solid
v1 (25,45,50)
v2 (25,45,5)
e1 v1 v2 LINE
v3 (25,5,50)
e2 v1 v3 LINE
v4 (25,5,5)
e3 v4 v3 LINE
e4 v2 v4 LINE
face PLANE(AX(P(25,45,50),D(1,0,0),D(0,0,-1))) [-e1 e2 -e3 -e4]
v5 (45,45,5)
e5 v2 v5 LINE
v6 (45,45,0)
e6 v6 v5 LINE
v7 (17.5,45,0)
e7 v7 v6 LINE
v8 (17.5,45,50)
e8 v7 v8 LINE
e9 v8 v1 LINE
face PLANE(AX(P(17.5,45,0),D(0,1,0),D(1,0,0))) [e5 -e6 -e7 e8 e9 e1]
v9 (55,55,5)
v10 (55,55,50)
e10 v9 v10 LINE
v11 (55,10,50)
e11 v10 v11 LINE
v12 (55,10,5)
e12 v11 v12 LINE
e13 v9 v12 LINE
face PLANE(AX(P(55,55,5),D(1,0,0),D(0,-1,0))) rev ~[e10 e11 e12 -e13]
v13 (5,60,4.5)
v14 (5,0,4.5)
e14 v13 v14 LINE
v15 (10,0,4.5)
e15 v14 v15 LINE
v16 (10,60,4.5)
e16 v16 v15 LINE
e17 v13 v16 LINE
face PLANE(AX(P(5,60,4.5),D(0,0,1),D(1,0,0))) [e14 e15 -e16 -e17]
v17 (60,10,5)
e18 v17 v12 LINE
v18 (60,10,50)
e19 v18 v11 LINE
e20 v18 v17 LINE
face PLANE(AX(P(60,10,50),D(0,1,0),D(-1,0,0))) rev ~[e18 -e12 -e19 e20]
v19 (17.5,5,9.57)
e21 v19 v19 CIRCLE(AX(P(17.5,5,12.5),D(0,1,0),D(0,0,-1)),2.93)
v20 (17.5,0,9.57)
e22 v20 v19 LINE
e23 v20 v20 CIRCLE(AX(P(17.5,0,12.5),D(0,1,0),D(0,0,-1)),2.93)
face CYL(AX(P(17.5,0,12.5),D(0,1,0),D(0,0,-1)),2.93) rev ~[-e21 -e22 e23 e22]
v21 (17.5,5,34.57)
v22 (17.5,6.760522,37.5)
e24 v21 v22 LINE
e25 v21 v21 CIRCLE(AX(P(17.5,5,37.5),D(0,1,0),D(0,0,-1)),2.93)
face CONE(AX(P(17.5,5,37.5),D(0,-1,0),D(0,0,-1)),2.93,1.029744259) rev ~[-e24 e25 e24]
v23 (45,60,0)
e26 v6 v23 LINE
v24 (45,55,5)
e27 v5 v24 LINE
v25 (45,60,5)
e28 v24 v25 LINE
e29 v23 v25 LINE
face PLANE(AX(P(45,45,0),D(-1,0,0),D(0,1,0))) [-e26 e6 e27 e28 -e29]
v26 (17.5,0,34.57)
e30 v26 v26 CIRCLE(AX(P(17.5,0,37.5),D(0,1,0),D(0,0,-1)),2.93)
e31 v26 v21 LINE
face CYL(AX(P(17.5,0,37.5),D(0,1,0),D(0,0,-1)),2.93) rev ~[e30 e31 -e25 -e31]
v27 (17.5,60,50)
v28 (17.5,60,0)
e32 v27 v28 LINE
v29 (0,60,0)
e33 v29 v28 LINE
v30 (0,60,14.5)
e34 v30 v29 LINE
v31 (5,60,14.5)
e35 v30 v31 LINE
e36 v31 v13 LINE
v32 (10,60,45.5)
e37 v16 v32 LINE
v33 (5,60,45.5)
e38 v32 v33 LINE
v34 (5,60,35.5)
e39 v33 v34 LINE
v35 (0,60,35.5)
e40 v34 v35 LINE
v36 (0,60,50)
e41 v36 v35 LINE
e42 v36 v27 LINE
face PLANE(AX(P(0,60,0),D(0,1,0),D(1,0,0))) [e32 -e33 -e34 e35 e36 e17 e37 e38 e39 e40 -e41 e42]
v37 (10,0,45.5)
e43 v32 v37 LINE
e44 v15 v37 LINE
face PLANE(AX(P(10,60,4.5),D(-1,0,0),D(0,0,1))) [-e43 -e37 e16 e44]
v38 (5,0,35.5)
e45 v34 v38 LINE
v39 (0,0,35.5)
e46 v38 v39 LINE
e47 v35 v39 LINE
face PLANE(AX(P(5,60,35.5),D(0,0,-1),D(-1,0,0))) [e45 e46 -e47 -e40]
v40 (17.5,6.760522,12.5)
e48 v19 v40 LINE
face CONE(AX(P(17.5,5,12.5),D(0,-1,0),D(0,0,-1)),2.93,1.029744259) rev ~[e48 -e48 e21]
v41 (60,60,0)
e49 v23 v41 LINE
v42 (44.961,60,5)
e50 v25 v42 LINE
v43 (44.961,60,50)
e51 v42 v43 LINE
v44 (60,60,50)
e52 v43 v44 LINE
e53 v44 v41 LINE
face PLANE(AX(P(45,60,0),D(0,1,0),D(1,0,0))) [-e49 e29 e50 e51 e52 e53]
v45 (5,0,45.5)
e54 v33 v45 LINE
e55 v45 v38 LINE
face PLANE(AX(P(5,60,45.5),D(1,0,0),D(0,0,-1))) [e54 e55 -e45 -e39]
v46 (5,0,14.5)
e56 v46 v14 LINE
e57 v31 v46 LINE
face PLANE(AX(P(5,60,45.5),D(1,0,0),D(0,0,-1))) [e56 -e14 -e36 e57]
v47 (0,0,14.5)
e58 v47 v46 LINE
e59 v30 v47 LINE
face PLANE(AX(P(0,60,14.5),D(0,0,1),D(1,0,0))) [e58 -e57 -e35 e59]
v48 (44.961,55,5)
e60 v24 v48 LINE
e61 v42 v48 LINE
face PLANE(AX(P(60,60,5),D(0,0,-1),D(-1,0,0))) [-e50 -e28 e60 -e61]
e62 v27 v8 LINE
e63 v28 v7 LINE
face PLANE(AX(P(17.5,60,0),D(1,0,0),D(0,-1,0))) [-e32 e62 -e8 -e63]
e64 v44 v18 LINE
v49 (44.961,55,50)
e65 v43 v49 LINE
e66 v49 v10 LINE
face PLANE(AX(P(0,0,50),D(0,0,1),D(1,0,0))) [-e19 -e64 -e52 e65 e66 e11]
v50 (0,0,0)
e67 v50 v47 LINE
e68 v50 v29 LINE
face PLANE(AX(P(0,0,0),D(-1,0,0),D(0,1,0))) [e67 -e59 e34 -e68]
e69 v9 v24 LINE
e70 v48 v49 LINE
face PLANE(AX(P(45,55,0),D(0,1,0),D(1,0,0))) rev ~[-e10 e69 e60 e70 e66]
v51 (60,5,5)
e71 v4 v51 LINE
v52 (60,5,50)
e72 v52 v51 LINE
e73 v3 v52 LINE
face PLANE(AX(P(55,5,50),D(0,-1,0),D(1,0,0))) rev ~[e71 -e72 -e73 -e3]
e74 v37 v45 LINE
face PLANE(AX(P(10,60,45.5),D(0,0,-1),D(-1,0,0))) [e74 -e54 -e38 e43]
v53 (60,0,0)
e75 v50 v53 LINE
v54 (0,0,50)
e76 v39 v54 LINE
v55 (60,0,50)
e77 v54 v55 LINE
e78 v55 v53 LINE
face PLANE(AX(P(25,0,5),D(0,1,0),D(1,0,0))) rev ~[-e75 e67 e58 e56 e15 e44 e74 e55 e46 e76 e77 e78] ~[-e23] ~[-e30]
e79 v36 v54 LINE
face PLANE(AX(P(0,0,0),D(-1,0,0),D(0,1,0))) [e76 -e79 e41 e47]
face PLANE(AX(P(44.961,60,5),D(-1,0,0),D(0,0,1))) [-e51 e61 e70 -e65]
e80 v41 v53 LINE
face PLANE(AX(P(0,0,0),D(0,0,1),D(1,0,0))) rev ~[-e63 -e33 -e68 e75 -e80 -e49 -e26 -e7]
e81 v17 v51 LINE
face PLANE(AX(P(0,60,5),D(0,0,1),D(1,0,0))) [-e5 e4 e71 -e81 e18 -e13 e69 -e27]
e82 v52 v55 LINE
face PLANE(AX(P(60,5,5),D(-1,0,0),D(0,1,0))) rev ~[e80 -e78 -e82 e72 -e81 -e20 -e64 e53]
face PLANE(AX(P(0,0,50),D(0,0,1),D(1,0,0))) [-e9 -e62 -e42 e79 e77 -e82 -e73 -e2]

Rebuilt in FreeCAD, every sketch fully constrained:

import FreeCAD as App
import Part
import Sketcher


def add_polygon(sketch, points):
    """Adds a closed chain of lines whose ends are joined by coincident constraints."""
    first, n = sketch.GeometryCount, len(points)
    for a, b in zip(points, points[1:] + points[:1]):
        sketch.addGeometry(Part.LineSegment(App.Vector(*a, 0), App.Vector(*b, 0)), False)
    for i in range(n):
        sketch.addConstraint(Sketcher.Constraint("Coincident", first + i, 2, first + (i + 1) % n, 1))

doc = App.newDocument("Part")
body = doc.addObject("PartDesign::Body", "Body")

sketch1 = body.newObject("Sketcher::SketchObject", "Sketch")
sketch1.AttachmentSupport = (doc.getObject("XY_Plane"), [""])
sketch1.MapMode = "FlatFace"
add_polygon(sketch1, [(0, 60), (0, 0), (60, 0), (60, 60), (45, 60), (45, 45), (18, 45), (18, 60)])
sketch1.addConstraint([
    Sketcher.Constraint("Vertical", 0),
    Sketcher.Constraint("Horizontal", 1),
    Sketcher.Constraint("Vertical", 2),
    Sketcher.Constraint("Horizontal", 3),
    Sketcher.Constraint("Vertical", 4),
    Sketcher.Constraint("Horizontal", 5),
    Sketcher.Constraint("Vertical", 6),
    Sketcher.Constraint("Horizontal", 7),
    Sketcher.Constraint("Coincident", 0, 2, -1, 1),
    Sketcher.Constraint("Horizontal", 3, 2, 6, 2),
    Sketcher.Constraint("Equal", 1, 0),
    Sketcher.Constraint("Equal", 3, 4),
    Sketcher.Constraint("DistanceX", 1, 1, 1, 2, 60.0),
    Sketcher.Constraint("DistanceX", 3, 2, 3, 1, 15.0),
    Sketcher.Constraint("DistanceX", 5, 2, 5, 1, 27.5),
])
pad1 = body.newObject("PartDesign::Pad", "Pad")
pad1.Profile = sketch1
pad1.Length = 5

sketch2 = body.newObject("Sketcher::SketchObject", "Sketch001")
sketch2.AttachmentSupport = (doc.getObject("XZ_Plane"), [""])
sketch2.MapMode = "FlatFace"
sketch2.AttachmentOffset = App.Placement(App.Vector(0, 0, -60), App.Rotation())
add_polygon(sketch2, [(18, 50), (18, 5), (0, 5), (0, 50)])
sketch2.addConstraint([
    Sketcher.Constraint("Vertical", 0),
    Sketcher.Constraint("Horizontal", 1),
    Sketcher.Constraint("Vertical", 2),
    Sketcher.Constraint("Horizontal", 3),
    Sketcher.Constraint("PointOnObject", 1, 2, -2),
    Sketcher.Constraint("DistanceY", 0, 2, 0, 1, 45.0),
    Sketcher.Constraint("DistanceX", 1, 2, 1, 1, 17.5),
    Sketcher.Constraint("DistanceY", -1, 1, 0, 2, 5.0),
])
pad2 = body.newObject("PartDesign::Pad", "Pad001")
pad2.Profile = sketch2
pad2.Length = 60

sketch3 = body.newObject("Sketcher::SketchObject", "Sketch002")
sketch3.AttachmentSupport = (doc.getObject("XZ_Plane"), [""])
sketch3.MapMode = "FlatFace"
sketch3.AttachmentOffset = App.Placement(App.Vector(0, 0, -60), App.Rotation())
add_polygon(sketch3, [(45, 5), (45, 50), (60, 50), (60, 5)])
sketch3.addConstraint([
    Sketcher.Constraint("Vertical", 0),
    Sketcher.Constraint("Horizontal", 1),
    Sketcher.Constraint("Vertical", 2),
    Sketcher.Constraint("Horizontal", 3),
    Sketcher.Constraint("DistanceY", 0, 1, 0, 2, 45.0),
    Sketcher.Constraint("DistanceY", -1, 1, 0, 2, 50.0),
    Sketcher.Constraint("DistanceX", -1, 1, 1, 2, 60.0),
    Sketcher.Constraint("DistanceX", 1, 1, 1, 2, 15.039),
])
pad3 = body.newObject("PartDesign::Pad", "Pad002")
pad3.Profile = sketch3
pad3.Length = 5

sketch4 = body.newObject("Sketcher::SketchObject", "Sketch003")
sketch4.AttachmentSupport = (doc.getObject("XZ_Plane"), [""])
sketch4.MapMode = "FlatFace"
sketch4.AttachmentOffset = App.Placement(App.Vector(0, 0, -45), App.Rotation())
add_polygon(sketch4, [(25, 5), (18, 5), (18, 50), (25, 50)])
sketch4.addConstraint([
    Sketcher.Constraint("Horizontal", 0),
    Sketcher.Constraint("Vertical", 1),
    Sketcher.Constraint("Horizontal", 2),
    Sketcher.Constraint("Vertical", 3),
    Sketcher.Constraint("DistanceX", 0, 2, 0, 1, 7.5),
    Sketcher.Constraint("DistanceY", 1, 1, 1, 2, 45.0),
    Sketcher.Constraint("DistanceY", -1, 1, 0, 2, 5.0),
    Sketcher.Constraint("DistanceX", -1, 1, 2, 2, 25.0),
])
pad4 = body.newObject("PartDesign::Pad", "Pad003")
pad4.Profile = sketch4
pad4.Length = 45

sketch5 = body.newObject("Sketcher::SketchObject", "Sketch004")
sketch5.AttachmentSupport = (doc.getObject("XY_Plane"), [""])
sketch5.MapMode = "FlatFace"
sketch5.AttachmentOffset = App.Placement(App.Vector(0, 0, 5), App.Rotation())
add_polygon(sketch5, [(25, 5), (25, 0), (60, 0), (60, 5)])
sketch5.addConstraint([
    Sketcher.Constraint("Vertical", 0),
    Sketcher.Constraint("Horizontal", 1),
    Sketcher.Constraint("Vertical", 2),
    Sketcher.Constraint("Horizontal", 3),
    Sketcher.Constraint("PointOnObject", 0, 2, -1),
    Sketcher.Constraint("DistanceY", 0, 2, 0, 1, 5.0),
    Sketcher.Constraint("DistanceX", 1, 1, 1, 2, 35.0),
    Sketcher.Constraint("DistanceX", -1, 1, 0, 2, 25.0),
])
pad5 = body.newObject("PartDesign::Pad", "Pad004")
pad5.Profile = sketch5
pad5.Length = 45

sketch6 = body.newObject("Sketcher::SketchObject", "Sketch005")
sketch6.AttachmentSupport = (doc.getObject("XY_Plane"), [""])
sketch6.MapMode = "FlatFace"
sketch6.AttachmentOffset = App.Placement(App.Vector(0, 0, 5), App.Rotation())
add_polygon(sketch6, [(60, 5), (60, 55), (55, 55), (55, 5)])
sketch6.addConstraint([
    Sketcher.Constraint("Vertical", 0),
    Sketcher.Constraint("Horizontal", 1),
    Sketcher.Constraint("Vertical", 2),
    Sketcher.Constraint("Horizontal", 3),
    Sketcher.Constraint("DistanceX", 1, 2, 1, 1, 5.0),
    Sketcher.Constraint("DistanceY", 0, 1, 0, 2, 50.0),
    Sketcher.Constraint("DistanceY", -1, 1, 2, 2, 5.0),
    Sketcher.Constraint("DistanceX", -1, 1, 0, 2, 60.0),
])
pad6 = body.newObject("PartDesign::Pad", "Pad005")
pad6.Profile = sketch6
pad6.Length = 45

sketch7 = body.newObject("Sketcher::SketchObject", "Sketch006")
sketch7.AttachmentSupport = (doc.getObject("XZ_Plane"), [""])
sketch7.MapMode = "FlatFace"
sketch7.AttachmentOffset = App.Placement(App.Vector(0, 0, -60), App.Rotation())
add_polygon(sketch7, [(5, 46), (10, 46), (10, 4), (5, 4)])
sketch7.addConstraint([
    Sketcher.Constraint("Horizontal", 0),
    Sketcher.Constraint("Vertical", 1),
    Sketcher.Constraint("Horizontal", 2),
    Sketcher.Constraint("Vertical", 3),
    Sketcher.Constraint("DistanceX", 0, 1, 0, 2, 5.0),
    Sketcher.Constraint("DistanceY", 1, 2, 1, 1, 41.0),
    Sketcher.Constraint("DistanceX", -1, 1, 2, 2, 5.0),
    Sketcher.Constraint("DistanceY", -1, 1, 1, 2, 4.5),
])
pocket1 = body.newObject("PartDesign::Pocket", "Pocket")
pocket1.Profile = sketch7
pocket1.Length = 60
pocket1.Reversed = True

sketch8 = body.newObject("Sketcher::SketchObject", "Sketch007")
sketch8.AttachmentSupport = (doc.getObject("XZ_Plane"), [""])
sketch8.MapMode = "FlatFace"
sketch8.AttachmentOffset = App.Placement(App.Vector(0, 0, -60), App.Rotation())
add_polygon(sketch8, [(5, 36), (5, 14), (0, 14), (0, 36)])
sketch8.addConstraint([
    Sketcher.Constraint("Vertical", 0),
    Sketcher.Constraint("Horizontal", 1),
    Sketcher.Constraint("Vertical", 2),
    Sketcher.Constraint("Horizontal", 3),
    Sketcher.Constraint("PointOnObject", 1, 2, -2),
    Sketcher.Constraint("DistanceY", 0, 2, 0, 1, 21.0),
    Sketcher.Constraint("DistanceY", -1, 1, 0, 2, 14.5),
    Sketcher.Constraint("DistanceX", 1, 2, 1, 1, 5.0),
])
pocket2 = body.newObject("PartDesign::Pocket", "Pocket001")
pocket2.Profile = sketch8
pocket2.Length = 60
pocket2.Reversed = True

sketch9 = body.newObject("Sketcher::SketchObject", "Sketch008")
sketch9.AttachmentSupport = (doc.getObject("XZ_Plane"), [""])
sketch9.MapMode = "FlatFace"
sketch9.addGeometry([
    Part.Circle(App.Vector(17.5, 12.5, 0), App.Vector(0, 0, 1), 2.9),
    Part.Circle(App.Vector(17.5, 37.5, 0), App.Vector(0, 0, 1), 2.9),
], False)
sketch9.addConstraint([
    Sketcher.Constraint("Equal", 0, 1),
    Sketcher.Constraint("Vertical", 0, 3, 1, 3),
    Sketcher.Constraint("Diameter", 0, 5.86),
    Sketcher.Constraint("DistanceY", 0, 3, 1, 3, 25.0),
    Sketcher.Constraint("DistanceX", -1, 1, 0, 3, 17.5),
    Sketcher.Constraint("DistanceY", -1, 1, 0, 3, 12.5),
])
doc.recompute()
hole = body.newObject("PartDesign::Hole", "Hole")
hole.Profile = sketch9
hole.ThreadType = "None"
hole.Diameter = 5.86
hole.DepthType = "Dimension"
hole.Depth = 5
hole.DrillPoint = "Angled"
hole.DrillPointAngle = 118

sketch10 = body.newObject("Sketcher::SketchObject", "Sketch009")
sketch10.AttachmentSupport = (doc.getObject("XY_Plane"), [""])
sketch10.MapMode = "FlatFace"
sketch10.AttachmentOffset = App.Placement(App.Vector(0, 0, 50), App.Rotation())
add_polygon(sketch10, [(60, 10), (55, 10), (55, 5), (60, 5)])
sketch10.addConstraint([
    Sketcher.Constraint("Horizontal", 0),
    Sketcher.Constraint("Vertical", 1),
    Sketcher.Constraint("Horizontal", 2),
    Sketcher.Constraint("Vertical", 3),
    Sketcher.Constraint("Equal", 2, 1),
    Sketcher.Constraint("DistanceX", 0, 2, 0, 1, 5.0),
    Sketcher.Constraint("DistanceY", -1, 1, 1, 2, 5.0),
    Sketcher.Constraint("DistanceX", -1, 1, 0, 2, 55.0),
])
pocket3 = body.newObject("PartDesign::Pocket", "Pocket002")
pocket3.Profile = sketch10
pocket3.Length = 45

doc.recompute()
